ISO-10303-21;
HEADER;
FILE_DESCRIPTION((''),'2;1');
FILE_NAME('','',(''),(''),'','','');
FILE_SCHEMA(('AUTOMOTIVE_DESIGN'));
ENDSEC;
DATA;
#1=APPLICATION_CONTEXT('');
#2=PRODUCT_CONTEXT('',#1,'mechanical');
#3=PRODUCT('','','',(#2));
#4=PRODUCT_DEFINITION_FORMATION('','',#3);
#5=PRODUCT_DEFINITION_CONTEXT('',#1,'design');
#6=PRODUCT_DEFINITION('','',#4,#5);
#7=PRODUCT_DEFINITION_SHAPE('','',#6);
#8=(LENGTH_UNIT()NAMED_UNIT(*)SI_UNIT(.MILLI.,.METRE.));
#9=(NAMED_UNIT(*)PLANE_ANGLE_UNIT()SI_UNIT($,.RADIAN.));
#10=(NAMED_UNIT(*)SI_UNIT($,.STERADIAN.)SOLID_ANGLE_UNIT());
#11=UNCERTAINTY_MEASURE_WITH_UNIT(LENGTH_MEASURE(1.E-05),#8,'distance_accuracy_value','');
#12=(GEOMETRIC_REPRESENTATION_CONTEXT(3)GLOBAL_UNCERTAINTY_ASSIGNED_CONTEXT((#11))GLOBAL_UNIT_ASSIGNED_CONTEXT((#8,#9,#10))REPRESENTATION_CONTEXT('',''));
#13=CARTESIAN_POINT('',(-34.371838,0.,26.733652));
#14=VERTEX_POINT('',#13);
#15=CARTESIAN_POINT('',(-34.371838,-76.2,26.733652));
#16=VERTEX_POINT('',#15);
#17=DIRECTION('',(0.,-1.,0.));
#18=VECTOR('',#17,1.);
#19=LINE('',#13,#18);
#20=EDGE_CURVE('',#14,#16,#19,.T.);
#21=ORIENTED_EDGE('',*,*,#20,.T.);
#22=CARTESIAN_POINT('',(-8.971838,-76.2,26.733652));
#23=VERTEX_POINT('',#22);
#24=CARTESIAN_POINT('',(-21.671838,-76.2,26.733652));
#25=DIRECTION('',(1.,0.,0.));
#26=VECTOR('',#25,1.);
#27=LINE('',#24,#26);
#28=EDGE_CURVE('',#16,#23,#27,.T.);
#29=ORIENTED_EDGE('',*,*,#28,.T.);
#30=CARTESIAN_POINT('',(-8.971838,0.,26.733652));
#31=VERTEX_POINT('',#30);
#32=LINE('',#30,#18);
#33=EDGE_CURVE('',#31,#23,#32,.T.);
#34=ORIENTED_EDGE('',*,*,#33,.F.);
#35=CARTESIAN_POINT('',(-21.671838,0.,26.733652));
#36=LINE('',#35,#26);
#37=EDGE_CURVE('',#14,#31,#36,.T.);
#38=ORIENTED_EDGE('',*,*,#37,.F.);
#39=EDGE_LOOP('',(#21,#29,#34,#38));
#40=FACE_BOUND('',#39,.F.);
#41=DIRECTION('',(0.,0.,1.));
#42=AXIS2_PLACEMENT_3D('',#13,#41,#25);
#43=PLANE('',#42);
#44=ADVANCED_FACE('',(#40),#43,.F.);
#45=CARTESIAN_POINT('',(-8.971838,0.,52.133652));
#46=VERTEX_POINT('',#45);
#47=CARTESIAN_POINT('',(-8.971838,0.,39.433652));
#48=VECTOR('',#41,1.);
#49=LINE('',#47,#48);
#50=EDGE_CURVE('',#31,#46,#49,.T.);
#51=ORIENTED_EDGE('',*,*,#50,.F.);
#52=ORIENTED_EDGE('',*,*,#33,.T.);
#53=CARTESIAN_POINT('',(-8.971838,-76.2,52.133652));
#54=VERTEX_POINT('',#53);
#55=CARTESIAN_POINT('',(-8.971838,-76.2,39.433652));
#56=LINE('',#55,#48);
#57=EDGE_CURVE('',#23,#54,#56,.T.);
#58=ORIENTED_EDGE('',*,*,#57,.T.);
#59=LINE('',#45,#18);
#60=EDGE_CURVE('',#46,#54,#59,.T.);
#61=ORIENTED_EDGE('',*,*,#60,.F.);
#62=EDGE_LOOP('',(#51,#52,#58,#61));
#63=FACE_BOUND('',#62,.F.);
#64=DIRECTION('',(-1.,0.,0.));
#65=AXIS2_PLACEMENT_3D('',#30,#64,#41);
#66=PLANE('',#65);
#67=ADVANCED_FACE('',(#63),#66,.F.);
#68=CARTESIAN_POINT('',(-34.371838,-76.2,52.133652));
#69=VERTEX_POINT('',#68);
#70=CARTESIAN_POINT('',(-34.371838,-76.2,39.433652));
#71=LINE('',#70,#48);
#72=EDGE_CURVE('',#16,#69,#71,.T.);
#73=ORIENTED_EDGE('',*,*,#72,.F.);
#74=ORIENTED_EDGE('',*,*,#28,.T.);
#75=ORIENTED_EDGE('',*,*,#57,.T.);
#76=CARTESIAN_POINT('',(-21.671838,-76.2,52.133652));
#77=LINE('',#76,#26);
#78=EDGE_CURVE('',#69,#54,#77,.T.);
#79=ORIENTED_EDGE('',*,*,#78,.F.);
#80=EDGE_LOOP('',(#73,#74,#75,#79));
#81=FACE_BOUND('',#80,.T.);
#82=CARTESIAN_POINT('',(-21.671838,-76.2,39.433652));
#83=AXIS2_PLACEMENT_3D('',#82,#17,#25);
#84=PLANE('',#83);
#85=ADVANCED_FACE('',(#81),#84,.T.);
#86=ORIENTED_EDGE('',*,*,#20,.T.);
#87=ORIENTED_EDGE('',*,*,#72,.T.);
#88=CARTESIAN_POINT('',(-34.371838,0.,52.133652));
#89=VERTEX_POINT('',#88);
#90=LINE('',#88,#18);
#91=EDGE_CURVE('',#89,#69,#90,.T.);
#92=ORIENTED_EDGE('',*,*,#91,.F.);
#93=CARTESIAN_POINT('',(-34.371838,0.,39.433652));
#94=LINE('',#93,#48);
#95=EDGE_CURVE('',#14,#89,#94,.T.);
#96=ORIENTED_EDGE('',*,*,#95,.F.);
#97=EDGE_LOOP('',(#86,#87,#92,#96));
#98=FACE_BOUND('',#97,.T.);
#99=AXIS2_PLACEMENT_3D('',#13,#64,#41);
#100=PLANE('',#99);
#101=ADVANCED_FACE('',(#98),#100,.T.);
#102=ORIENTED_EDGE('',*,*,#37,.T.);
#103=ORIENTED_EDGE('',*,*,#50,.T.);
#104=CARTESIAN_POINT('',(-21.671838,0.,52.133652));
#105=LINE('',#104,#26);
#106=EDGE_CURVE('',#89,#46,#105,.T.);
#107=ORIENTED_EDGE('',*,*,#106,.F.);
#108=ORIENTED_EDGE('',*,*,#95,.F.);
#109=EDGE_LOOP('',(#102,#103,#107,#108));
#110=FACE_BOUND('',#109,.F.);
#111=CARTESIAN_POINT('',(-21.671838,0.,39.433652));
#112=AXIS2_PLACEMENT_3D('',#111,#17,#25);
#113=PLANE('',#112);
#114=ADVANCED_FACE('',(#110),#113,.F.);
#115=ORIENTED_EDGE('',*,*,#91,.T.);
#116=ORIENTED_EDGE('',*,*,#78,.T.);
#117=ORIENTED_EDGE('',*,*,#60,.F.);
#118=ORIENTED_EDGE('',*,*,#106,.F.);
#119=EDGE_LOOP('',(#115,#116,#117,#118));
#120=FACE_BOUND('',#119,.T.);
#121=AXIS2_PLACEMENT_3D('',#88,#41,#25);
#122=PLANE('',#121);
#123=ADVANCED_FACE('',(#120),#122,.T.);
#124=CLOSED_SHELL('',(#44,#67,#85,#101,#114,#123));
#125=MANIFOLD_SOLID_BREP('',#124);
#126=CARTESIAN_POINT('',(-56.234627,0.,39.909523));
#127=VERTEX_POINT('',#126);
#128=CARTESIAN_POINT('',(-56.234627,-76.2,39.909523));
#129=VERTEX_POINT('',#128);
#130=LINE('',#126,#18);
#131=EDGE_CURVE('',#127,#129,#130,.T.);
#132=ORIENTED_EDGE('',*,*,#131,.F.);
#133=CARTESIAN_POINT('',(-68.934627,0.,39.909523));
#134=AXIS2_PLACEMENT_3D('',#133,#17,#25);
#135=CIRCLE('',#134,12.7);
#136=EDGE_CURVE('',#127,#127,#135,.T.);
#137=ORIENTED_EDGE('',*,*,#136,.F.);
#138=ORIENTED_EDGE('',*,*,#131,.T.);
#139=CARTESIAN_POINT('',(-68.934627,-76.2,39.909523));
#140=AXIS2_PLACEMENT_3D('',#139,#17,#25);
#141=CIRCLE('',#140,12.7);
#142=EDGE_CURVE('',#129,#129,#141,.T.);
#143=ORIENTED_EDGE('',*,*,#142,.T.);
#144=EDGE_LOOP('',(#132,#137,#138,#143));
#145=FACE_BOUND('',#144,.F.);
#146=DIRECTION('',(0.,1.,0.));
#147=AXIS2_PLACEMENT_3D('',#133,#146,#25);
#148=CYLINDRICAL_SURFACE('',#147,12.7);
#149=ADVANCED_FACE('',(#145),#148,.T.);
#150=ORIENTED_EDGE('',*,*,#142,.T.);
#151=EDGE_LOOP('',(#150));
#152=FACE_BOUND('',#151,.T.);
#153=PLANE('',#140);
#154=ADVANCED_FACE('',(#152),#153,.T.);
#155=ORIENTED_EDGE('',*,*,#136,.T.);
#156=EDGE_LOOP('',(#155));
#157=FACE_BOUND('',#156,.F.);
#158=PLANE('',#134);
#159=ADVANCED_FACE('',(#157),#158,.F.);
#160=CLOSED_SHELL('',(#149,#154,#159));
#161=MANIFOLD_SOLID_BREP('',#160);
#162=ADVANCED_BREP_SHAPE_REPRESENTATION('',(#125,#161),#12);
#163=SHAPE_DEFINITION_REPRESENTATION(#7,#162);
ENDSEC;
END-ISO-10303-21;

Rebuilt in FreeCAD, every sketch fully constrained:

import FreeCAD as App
import Part
import Sketcher

V = App.Vector
Q = App.Units.Quantity


def add_polygon(sketch, points):
    """Adds a closed chain of lines whose ends are joined by coincident constraints."""
    first, n = sketch.GeometryCount, len(points)
    for a, b in zip(points, points[1:] + points[:1]):
        sketch.addGeometry(Part.LineSegment(App.Vector(*a, 0), App.Vector(*b, 0)), False)
    for i in range(n):
        sketch.addConstraint(Sketcher.Constraint("Coincident", first + i, 2, first + (i + 1) % n, 1))

doc = App.newDocument("Part")
body = doc.addObject("PartDesign::Body", "Body")
body.AllowCompound = True

sketch1 = body.newObject("Sketcher::SketchObject", "Sketch")
sketch1.AttachmentSupport = (doc.getObject("XZ_Plane"), [""])
sketch1.MapMode = "FlatFace"
sketch1.addGeometry(Part.Circle(V(-68.934627, 39.909523, 0), V(0, 0, 1), 12.7), False)
add_polygon(sketch1, [(-34.371838, 52.133652), (-34.371838, 26.733652), (-8.971838, 26.733652), (-8.971838, 52.133652)])
sketch1.addConstraint([
    Sketcher.Constraint("Vertical", 1),
    Sketcher.Constraint("Horizontal", 2),
    Sketcher.Constraint("Vertical", 3),
    Sketcher.Constraint("Horizontal", 4),
    Sketcher.Constraint("Equal", 4, 1),
    Sketcher.Constraint("Diameter", 0, Q("1 in")),
    Sketcher.Constraint("DistanceX", 2, 1, 2, 2, Q("1 in")),
    Sketcher.Constraint("DistanceY", -1, 1, 1, 2, 26.733652),
    Sketcher.Constraint("DistanceX", 0, 3, 1, 2, 34.562789),
    Sketcher.Constraint("DistanceY", 1, 2, 0, 3, 13.175871),
    Sketcher.Constraint("DistanceX", 0, 3, -1, 1, 68.934627),
])
pad1 = body.newObject("PartDesign::Pad", "Pad")
pad1.Profile = sketch1
pad1.Length = Q("3 in")

doc.recompute()
